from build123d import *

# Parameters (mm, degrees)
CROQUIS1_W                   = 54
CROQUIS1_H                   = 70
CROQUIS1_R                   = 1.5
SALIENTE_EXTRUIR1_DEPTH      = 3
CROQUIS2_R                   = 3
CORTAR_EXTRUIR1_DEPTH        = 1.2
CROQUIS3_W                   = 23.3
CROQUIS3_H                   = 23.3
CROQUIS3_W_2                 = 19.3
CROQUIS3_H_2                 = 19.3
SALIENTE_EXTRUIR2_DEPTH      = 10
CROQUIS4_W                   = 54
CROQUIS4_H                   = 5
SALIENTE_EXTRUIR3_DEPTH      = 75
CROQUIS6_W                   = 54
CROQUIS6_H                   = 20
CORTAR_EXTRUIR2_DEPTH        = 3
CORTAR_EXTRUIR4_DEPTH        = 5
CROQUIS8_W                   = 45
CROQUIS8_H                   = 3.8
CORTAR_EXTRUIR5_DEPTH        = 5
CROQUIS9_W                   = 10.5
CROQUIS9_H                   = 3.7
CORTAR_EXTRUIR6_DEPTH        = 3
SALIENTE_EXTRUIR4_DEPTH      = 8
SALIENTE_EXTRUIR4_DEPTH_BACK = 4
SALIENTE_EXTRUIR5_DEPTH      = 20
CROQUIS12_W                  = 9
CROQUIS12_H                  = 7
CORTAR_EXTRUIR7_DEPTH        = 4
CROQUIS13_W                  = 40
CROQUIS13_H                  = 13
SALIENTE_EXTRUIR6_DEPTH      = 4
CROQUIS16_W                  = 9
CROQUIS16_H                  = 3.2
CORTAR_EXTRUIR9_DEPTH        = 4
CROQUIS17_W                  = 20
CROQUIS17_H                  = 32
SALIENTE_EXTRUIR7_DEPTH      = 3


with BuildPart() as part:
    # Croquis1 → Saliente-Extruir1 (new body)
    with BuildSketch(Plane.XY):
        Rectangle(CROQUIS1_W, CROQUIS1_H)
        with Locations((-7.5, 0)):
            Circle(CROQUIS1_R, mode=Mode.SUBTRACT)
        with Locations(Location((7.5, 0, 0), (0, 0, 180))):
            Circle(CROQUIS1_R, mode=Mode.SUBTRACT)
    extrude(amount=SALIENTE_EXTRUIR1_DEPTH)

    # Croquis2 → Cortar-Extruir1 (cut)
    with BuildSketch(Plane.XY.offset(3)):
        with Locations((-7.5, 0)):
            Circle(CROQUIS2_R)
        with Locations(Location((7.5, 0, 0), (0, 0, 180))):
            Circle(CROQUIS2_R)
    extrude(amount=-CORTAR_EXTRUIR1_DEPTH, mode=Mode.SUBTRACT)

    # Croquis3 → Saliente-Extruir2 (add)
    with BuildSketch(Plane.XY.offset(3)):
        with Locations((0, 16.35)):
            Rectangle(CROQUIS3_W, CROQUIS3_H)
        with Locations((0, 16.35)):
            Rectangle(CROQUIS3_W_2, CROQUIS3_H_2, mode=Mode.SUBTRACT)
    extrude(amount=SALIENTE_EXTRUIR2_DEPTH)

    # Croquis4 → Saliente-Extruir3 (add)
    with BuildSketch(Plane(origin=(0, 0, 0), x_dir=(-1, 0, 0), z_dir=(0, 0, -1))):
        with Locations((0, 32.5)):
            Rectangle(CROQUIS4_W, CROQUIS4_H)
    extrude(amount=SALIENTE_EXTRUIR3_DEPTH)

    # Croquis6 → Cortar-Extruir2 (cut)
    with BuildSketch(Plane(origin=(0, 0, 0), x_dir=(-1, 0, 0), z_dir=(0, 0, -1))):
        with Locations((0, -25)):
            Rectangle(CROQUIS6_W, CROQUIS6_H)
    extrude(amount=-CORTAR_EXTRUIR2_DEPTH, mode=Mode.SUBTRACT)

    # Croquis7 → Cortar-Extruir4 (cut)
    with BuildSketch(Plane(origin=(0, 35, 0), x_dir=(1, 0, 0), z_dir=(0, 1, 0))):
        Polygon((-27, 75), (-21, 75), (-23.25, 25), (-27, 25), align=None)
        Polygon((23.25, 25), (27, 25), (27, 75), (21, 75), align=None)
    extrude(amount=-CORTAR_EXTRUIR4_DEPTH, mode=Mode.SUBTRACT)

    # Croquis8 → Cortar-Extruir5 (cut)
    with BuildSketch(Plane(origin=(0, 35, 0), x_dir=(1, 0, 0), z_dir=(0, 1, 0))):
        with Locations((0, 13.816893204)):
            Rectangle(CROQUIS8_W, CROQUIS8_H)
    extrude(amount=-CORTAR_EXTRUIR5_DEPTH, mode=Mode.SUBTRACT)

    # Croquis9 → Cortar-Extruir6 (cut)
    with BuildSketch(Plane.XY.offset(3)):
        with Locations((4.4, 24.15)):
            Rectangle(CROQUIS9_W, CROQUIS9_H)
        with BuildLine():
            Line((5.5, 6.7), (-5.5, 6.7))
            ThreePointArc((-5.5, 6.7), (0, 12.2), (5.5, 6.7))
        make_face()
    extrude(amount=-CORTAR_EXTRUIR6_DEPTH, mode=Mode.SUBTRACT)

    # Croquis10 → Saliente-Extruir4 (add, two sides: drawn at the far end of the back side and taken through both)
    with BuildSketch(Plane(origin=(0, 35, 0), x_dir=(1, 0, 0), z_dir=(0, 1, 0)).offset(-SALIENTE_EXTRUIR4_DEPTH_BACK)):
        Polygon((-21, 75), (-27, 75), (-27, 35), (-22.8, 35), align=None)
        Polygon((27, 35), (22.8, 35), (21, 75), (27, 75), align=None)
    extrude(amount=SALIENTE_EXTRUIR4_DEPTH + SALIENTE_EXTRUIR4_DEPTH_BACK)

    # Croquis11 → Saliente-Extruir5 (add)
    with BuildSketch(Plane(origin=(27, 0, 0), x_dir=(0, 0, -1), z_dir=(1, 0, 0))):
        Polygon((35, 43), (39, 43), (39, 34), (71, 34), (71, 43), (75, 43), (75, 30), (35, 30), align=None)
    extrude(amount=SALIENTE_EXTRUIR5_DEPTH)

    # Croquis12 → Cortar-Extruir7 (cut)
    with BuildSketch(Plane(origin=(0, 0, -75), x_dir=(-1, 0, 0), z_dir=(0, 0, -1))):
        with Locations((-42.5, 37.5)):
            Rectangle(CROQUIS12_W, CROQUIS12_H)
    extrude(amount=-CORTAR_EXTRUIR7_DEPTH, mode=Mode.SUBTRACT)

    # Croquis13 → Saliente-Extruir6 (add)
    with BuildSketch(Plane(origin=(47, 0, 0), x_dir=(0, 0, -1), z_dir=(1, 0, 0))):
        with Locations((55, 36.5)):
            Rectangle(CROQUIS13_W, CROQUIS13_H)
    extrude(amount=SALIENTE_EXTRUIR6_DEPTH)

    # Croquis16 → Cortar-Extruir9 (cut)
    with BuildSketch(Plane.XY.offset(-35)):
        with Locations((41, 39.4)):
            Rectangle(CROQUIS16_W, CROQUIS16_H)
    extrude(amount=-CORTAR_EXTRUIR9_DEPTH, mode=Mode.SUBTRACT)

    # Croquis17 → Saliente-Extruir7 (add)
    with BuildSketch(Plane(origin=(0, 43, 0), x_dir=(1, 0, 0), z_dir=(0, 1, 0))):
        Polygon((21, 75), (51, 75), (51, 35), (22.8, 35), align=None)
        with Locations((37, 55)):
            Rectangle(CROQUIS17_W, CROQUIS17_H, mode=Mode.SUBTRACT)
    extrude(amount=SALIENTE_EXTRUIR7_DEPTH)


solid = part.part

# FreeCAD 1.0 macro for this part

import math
import FreeCAD as App
import Part
import Sketcher

V = App.Vector
Q = App.Units.Quantity


def add_polygon(sketch, points):
    """Adds a closed chain of lines whose ends are joined by coincident constraints."""
    first, n = sketch.GeometryCount, len(points)
    for a, b in zip(points, points[1:] + points[:1]):
        sketch.addGeometry(Part.LineSegment(App.Vector(*a, 0), App.Vector(*b, 0)), False)
    for i in range(n):
        sketch.addConstraint(Sketcher.Constraint("Coincident", first + i, 2, first + (i + 1) % n, 1))

doc = App.newDocument("Part")
body = doc.addObject("PartDesign::Body", "Body")

sketch1 = body.newObject("Sketcher::SketchObject", "Sketch")
sketch1.AttachmentSupport = (doc.getObject("XY_Plane"), [""])
sketch1.MapMode = "FlatFace"
add_polygon(sketch1, [(-27, 35), (-27, -35), (27, -35), (27, 35)])
sketch1.addGeometry(Part.Circle(V(-7.5, 0, 0), V(0, 0, 1), 1.5), False)
sketch1.addGeometry(Part.Circle(V(7.5, 0, 0), V(0, 0, 1), 1.5), False)
sketch1.addConstraint(Sketcher.Constraint("Vertical", 0))
sketch1.addConstraint(Sketcher.Constraint("Horizontal", 1))
sketch1.addConstraint(Sketcher.Constraint("Vertical", 2))
sketch1.addConstraint(Sketcher.Constraint("Horizontal", 3))
sketch1.addConstraint(Sketcher.Constraint("Equal", 4, 5))
sketch1.addConstraint(Sketcher.Constraint("Symmetric", 4, 3, 5, 3, -1, 1))
sketch1.addConstraint(Sketcher.Constraint("Symmetric", 0, 2, 2, 2, -1, 1))
sketch1.addConstraint(Sketcher.Constraint("PointOnObject", 4, 3, -1))
sketch1.addConstraint(Sketcher.Constraint("Diameter", 4, Q("3 mm")))
sketch1.addConstraint(Sketcher.Constraint("DistanceX", 1, 1, 1, 2, Q("54 mm")))
sketch1.addConstraint(Sketcher.Constraint("DistanceY", 0, 2, 0, 1, Q("70 mm")))
sketch1.addConstraint(Sketcher.Constraint("DistanceX", 4, 3, 5, 3, Q("15 mm")))
pad1 = body.newObject("PartDesign::Pad", "Pad")
pad1.Profile = sketch1
pad1.Length = 3

sketch2 = body.newObject("Sketcher::SketchObject", "Sketch001")
sketch2.AttachmentSupport = (doc.getObject("XY_Plane"), [""])
sketch2.MapMode = "FlatFace"
sketch2.AttachmentOffset = App.Placement(V(0, 0, 3), App.Rotation())
sketch2.addGeometry(Part.Circle(V(-7.5, 0, 0), V(0, 0, 1), 3), False)
sketch2.addGeometry(Part.Circle(V(7.5, 0, 0), V(0, 0, 1), 3), False)
sketch2.addConstraint(Sketcher.Constraint("Equal", 0, 1))
sketch2.addConstraint(Sketcher.Constraint("Symmetric", 0, 3, 1, 3, -1, 1))
sketch2.addConstraint(Sketcher.Constraint("PointOnObject", 0, 3, -1))
sketch2.addConstraint(Sketcher.Constraint("Diameter", 0, Q("6 mm")))
sketch2.addConstraint(Sketcher.Constraint("DistanceX", 0, 3, 1, 3, Q("15 mm")))
pocket1 = body.newObject("PartDesign::Pocket", "Pocket")
pocket1.Profile = sketch2
pocket1.Length = 1.2

sketch3 = body.newObject("Sketcher::SketchObject", "Sketch002")
sketch3.AttachmentSupport = (doc.getObject("XY_Plane"), [""])
sketch3.MapMode = "FlatFace"
sketch3.AttachmentOffset = App.Placement(V(0, 0, 3), App.Rotation())
add_polygon(sketch3, [(-12, 28), (-12, 5), (12, 5), (12, 28)])
add_polygon(sketch3, [(10, 7), (-10, 7), (-10, 26), (10, 26)])
sketch3.addConstraint(Sketcher.Constraint("Vertical", 0))
sketch3.addConstraint(Sketcher.Constraint("Horizontal", 1))
sketch3.addConstraint(Sketcher.Constraint("Vertical", 2))
sketch3.addConstraint(Sketcher.Constraint("Horizontal", 3))
sketch3.addConstraint(Sketcher.Constraint("Horizontal", 4))
sketch3.addConstraint(Sketcher.Constraint("Vertical", 5))
sketch3.addConstraint(Sketcher.Constraint("Horizontal", 6))
sketch3.addConstraint(Sketcher.Constraint("Vertical", 7))
sketch3.addConstraint(Sketcher.Constraint("Equal", 3, 0))
sketch3.addConstraint(Sketcher.Constraint("Equal", 6, 5))
sketch3.addConstraint(Sketcher.Constraint("DistanceX", 1, 1, 1, 2, Q("23.3 mm")))
sketch3.addConstraint(Sketcher.Constraint("DistanceX", 4, 2, 4, 1, Q("19.3 mm")))
sketch3.addConstraint(Sketcher.Constraint("DistanceY", -1, 1, 2, 2, Q("28 mm")))
sketch3.addConstraint(Sketcher.Constraint("DistanceY", -1, 1, 5, 2, Q("26 mm")))
sketch3.addConstraint(Sketcher.Constraint("DistanceX", 0, 2, 4, 2, Q("2 mm")))
sketch3.addConstraint(Sketcher.Constraint("DistanceX", 0, 2, -1, 1, Q("11.65 mm")))
pad2 = body.newObject("PartDesign::Pad", "Pad001")
pad2.Profile = sketch3
pad2.Length = 10

sketch4 = body.newObject("Sketcher::SketchObject", "Sketch003")
sketch4.AttachmentSupport = (doc.getObject("XY_Plane"), [""])
sketch4.MapMode = "FlatFace"
add_polygon(sketch4, [(27, 35), (27, 30), (-27, 30), (-27, 35)])
sketch4.addConstraint(Sketcher.Constraint("Vertical", 0))
sketch4.addConstraint(Sketcher.Constraint("Horizontal", 1))
sketch4.addConstraint(Sketcher.Constraint("Vertical", 2))
sketch4.addConstraint(Sketcher.Constraint("Horizontal", 3))
sketch4.addConstraint(Sketcher.Constraint("DistanceX", 1, 2, 1, 1, Q("54 mm")))
sketch4.addConstraint(Sketcher.Constraint("DistanceY", 0, 2, 0, 1, Q("5 mm")))
sketch4.addConstraint(Sketcher.Constraint("DistanceX", -1, 1, 0, 2, Q("27 mm")))
sketch4.addConstraint(Sketcher.Constraint("DistanceY", -1, 1, 0, 2, Q("30 mm")))
pad3 = body.newObject("PartDesign::Pad", "Pad002")
pad3.Profile = sketch4
pad3.Length = 75
pad3.Reversed = True

sketch5 = body.newObject("Sketcher::SketchObject", "Sketch004")
sketch5.AttachmentSupport = (doc.getObject("XY_Plane"), [""])
sketch5.MapMode = "FlatFace"
add_polygon(sketch5, [(27, -15), (27, -35), (-27, -35), (-27, -15)])
sketch5.addConstraint(Sketcher.Constraint("Vertical", 0))
sketch5.addConstraint(Sketcher.Constraint("Horizontal", 1))
sketch5.addConstraint(Sketcher.Constraint("Vertical", 2))
sketch5.addConstraint(Sketcher.Constraint("Horizontal", 3))
sketch5.addConstraint(Sketcher.Constraint("DistanceX", 1, 2, 1, 1, Q("54 mm")))
sketch5.addConstraint(Sketcher.Constraint("DistanceY", 0, 2, 0, 1, Q("20 mm")))
sketch5.addConstraint(Sketcher.Constraint("DistanceX", -1, 1, 0, 2, Q("27 mm")))
sketch5.addConstraint(Sketcher.Constraint("DistanceY", 0, 2, -1, 1, Q("35 mm")))
pocket2 = body.newObject("PartDesign::Pocket", "Pocket001")
pocket2.Profile = sketch5
pocket2.Length = 3
pocket2.Reversed = True

sketch6 = body.newObject("Sketcher::SketchObject", "Sketch005")
sketch6.AttachmentSupport = (doc.getObject("XZ_Plane"), [""])
sketch6.MapMode = "FlatFace"
sketch6.AttachmentOffset = App.Placement(V(0, 0, -35), App.Rotation())
add_polygon(sketch6, [(-21, -75), (-27, -75), (-27, -25), (-23.2, -25)])
add_polygon(sketch6, [(23.2, -25), (27, -25), (27, -75), (21, -75)])
sketch6.addConstraint(Sketcher.Constraint("Horizontal", 0))
sketch6.addConstraint(Sketcher.Constraint("Vertical", 1))
sketch6.addConstraint(Sketcher.Constraint("Horizontal", 2))
sketch6.addConstraint(Sketcher.Constraint("Horizontal", 4))
sketch6.addConstraint(Sketcher.Constraint("Vertical", 5))
sketch6.addConstraint(Sketcher.Constraint("Horizontal", 6))
sketch6.addConstraint(Sketcher.Constraint("Symmetric", 1, 2, 4, 2, -2))
sketch6.addConstraint(Sketcher.Constraint("Symmetric", 3, 2, 6, 2, -2))
sketch6.addConstraint(Sketcher.Constraint("Equal", 2, 4))
sketch6.addConstraint(Sketcher.Constraint("DistanceX", 0, 2, 0, 1, Q("6 mm")))
sketch6.addConstraint(Sketcher.Constraint("DistanceY", 1, 1, 1, 2, Q("50 mm")))
sketch6.addConstraint(Sketcher.Constraint("DistanceX", 0, 2, -1, 1, Q("27 mm")))
sketch6.addConstraint(Sketcher.Constraint("DistanceY", 0, 2, -1, 1, Q("75 mm")))
sketch6.addConstraint(Sketcher.Constraint("DistanceX", 2, 1, 2, 2, Q("3.75 mm")))
pocket3 = body.newObject("PartDesign::Pocket", "Pocket002")
pocket3.Profile = sketch6
pocket3.Length = 5
pocket3.Reversed = True

sketch7 = body.newObject("Sketcher::SketchObject", "Sketch006")
sketch7.AttachmentSupport = (doc.getObject("XZ_Plane"), [""])
sketch7.MapMode = "FlatFace"
sketch7.AttachmentOffset = App.Placement(V(0, 0, -35), App.Rotation())
add_polygon(sketch7, [(-22.5, -15.7), (-22.5, -11.9), (22.5, -11.9), (22.5, -15.7)])
sketch7.addConstraint(Sketcher.Constraint("Vertical", 0))
sketch7.addConstraint(Sketcher.Constraint("Horizontal", 1))
sketch7.addConstraint(Sketcher.Constraint("Vertical", 2))
sketch7.addConstraint(Sketcher.Constraint("Horizontal", 3))
sketch7.addConstraint(Sketcher.Constraint("DistanceX", 1, 1, 1, 2, Q("45 mm")))
sketch7.addConstraint(Sketcher.Constraint("DistanceY", 0, 1, 0, 2, Q("3.8 mm")))
sketch7.addConstraint(Sketcher.Constraint("DistanceX", 0, 2, -1, 1, Q("22.5 mm")))
sketch7.addConstraint(Sketcher.Constraint("DistanceY", 0, 2, -1, 1, Q("11.916893 mm")))
pocket4 = body.newObject("PartDesign::Pocket", "Pocket003")
pocket4.Profile = sketch7
pocket4.Length = 5
pocket4.Reversed = True

sketch8 = body.newObject("Sketcher::SketchObject", "Sketch007")
sketch8.AttachmentSupport = (doc.getObject("XY_Plane"), [""])
sketch8.MapMode = "FlatFace"
sketch8.AttachmentOffset = App.Placement(V(0, 0, 3), App.Rotation())
add_polygon(sketch8, [(-0.8, 26), (-0.8, 22.3), (9.7, 22.3), (9.7, 26)])
sketch8.addGeometry(Part.LineSegment(V(-5.5, 6.7, 0), V(5.5, 6.7, 0)), False)
sketch8.addGeometry(Part.ArcOfCircle(Part.Circle(V(0, 6.7, 0), V(0, 0, 1), 5.5), math.radians(0), math.radians(180)), False)
sketch8.addConstraint(Sketcher.Constraint("Coincident", 4, 1, 5, 2))
sketch8.addConstraint(Sketcher.Constraint("Coincident", 5, 1, 4, 2))
sketch8.addConstraint(Sketcher.Constraint("Vertical", 0))
sketch8.addConstraint(Sketcher.Constraint("Horizontal", 1))
sketch8.addConstraint(Sketcher.Constraint("Vertical", 2))
sketch8.addConstraint(Sketcher.Constraint("Horizontal", 3))
sketch8.addConstraint(Sketcher.Constraint("Horizontal", 4))
sketch8.addConstraint(Sketcher.Constraint("PointOnObject", 5, 3, -2))
sketch8.addConstraint(Sketcher.Constraint("Horizontal", 5, 3, 4, 1))
sketch8.addConstraint(Sketcher.Constraint("Radius", 5, Q("5.5 mm")))
sketch8.addConstraint(Sketcher.Constraint("DistanceX", 1, 1, 1, 2, Q("10.5 mm")))
sketch8.addConstraint(Sketcher.Constraint("DistanceY", 0, 2, 0, 1, Q("3.7 mm")))
sketch8.addConstraint(Sketcher.Constraint("DistanceY", -1, 1, 2, 2, Q("26 mm")))
sketch8.addConstraint(Sketcher.Constraint("DistanceY", -1, 1, 5, 3, Q("6.7 mm")))
sketch8.addConstraint(Sketcher.Constraint("DistanceX", 0, 2, -1, 1, Q("0.85 mm")))
pocket5 = body.newObject("PartDesign::Pocket", "Pocket004")
pocket5.Profile = sketch8
pocket5.Length = 3

sketch9 = body.newObject("Sketcher::SketchObject", "Sketch008")
sketch9.AttachmentSupport = (doc.getObject("XZ_Plane"), [""])
sketch9.MapMode = "FlatFace"
sketch9.AttachmentOffset = App.Placement(V(0, 0, -35), App.Rotation())
add_polygon(sketch9, [(-21, -75), (-27, -75), (-27, -35), (-22.8, -35)])
add_polygon(sketch9, [(22.8, -35), (27, -35), (27, -75), (21, -75)])
sketch9.addConstraint(Sketcher.Constraint("Horizontal", 0))
sketch9.addConstraint(Sketcher.Constraint("Vertical", 1))
sketch9.addConstraint(Sketcher.Constraint("Horizontal", 2))
sketch9.addConstraint(Sketcher.Constraint("Horizontal", 4))
sketch9.addConstraint(Sketcher.Constraint("Vertical", 5))
sketch9.addConstraint(Sketcher.Constraint("Horizontal", 6))
sketch9.addConstraint(Sketcher.Constraint("Symmetric", 1, 2, 4, 2, -2))
sketch9.addConstraint(Sketcher.Constraint("Symmetric", 3, 2, 6, 2, -2))
sketch9.addConstraint(Sketcher.Constraint("Equal", 2, 4))
sketch9.addConstraint(Sketcher.Constraint("DistanceX", 0, 2, 0, 1, Q("6 mm")))
sketch9.addConstraint(Sketcher.Constraint("DistanceY", 1, 1, 1, 2, Q("40 mm")))
sketch9.addConstraint(Sketcher.Constraint("DistanceX", 2, 1, 2, 2, Q("4.2 mm")))
sketch9.addConstraint(Sketcher.Constraint("DistanceX", 0, 2, -1, 1, Q("27 mm")))
sketch9.addConstraint(Sketcher.Constraint("DistanceY", 0, 2, -1, 1, Q("75 mm")))
pad4 = body.newObject("PartDesign::Pad", "Pad003")
pad4.Profile = sketch9
pad4.Type = "TwoLengths"
pad4.Length = 8
pad4.Length2 = 4
pad4.Reversed = True

sketch10 = body.newObject("Sketcher::SketchObject", "Sketch009")
sketch10.AttachmentSupport = (doc.getObject("YZ_Plane"), [""])
sketch10.MapMode = "FlatFace"
sketch10.AttachmentOffset = App.Placement(V(0, 0, 27), App.Rotation())
add_polygon(sketch10, [(43, -39), (43, -35), (30, -35), (30, -75), (43, -75), (43, -71), (34, -71), (34, -39)])
sketch10.addConstraint(Sketcher.Constraint("Vertical", 0))
sketch10.addConstraint(Sketcher.Constraint("Horizontal", 1))
sketch10.addConstraint(Sketcher.Constraint("Vertical", 2))
sketch10.addConstraint(Sketcher.Constraint("Horizontal", 3))
sketch10.addConstraint(Sketcher.Constraint("Vertical", 4))
sketch10.addConstraint(Sketcher.Constraint("Horizontal", 5))
sketch10.addConstraint(Sketcher.Constraint("Vertical", 6))
sketch10.addConstraint(Sketcher.Constraint("Horizontal", 7))
sketch10.addConstraint(Sketcher.Constraint("Vertical", 0, 2, 3, 2))
sketch10.addConstraint(Sketcher.Constraint("Equal", 0, 4))
sketch10.addConstraint(Sketcher.Constraint("DistanceX", 1, 2, 1, 1, Q("13 mm")))
sketch10.addConstraint(Sketcher.Constraint("DistanceX", 5, 2, 5, 1, Q("9 mm")))
sketch10.addConstraint(Sketcher.Constraint("DistanceY", 0, 1, 0, 2, Q("4 mm")))
sketch10.addConstraint(Sketcher.Constraint("DistanceY", 2, 2, 2, 1, Q("40 mm")))
sketch10.addConstraint(Sketcher.Constraint("DistanceX", -1, 1, 0, 2, Q("43 mm")))
sketch10.addConstraint(Sketcher.Constraint("DistanceY", 0, 2, -1, 1, Q("35 mm")))
pad5 = body.newObject("PartDesign::Pad", "Pad004")
pad5.Profile = sketch10
pad5.Length = 20

sketch11 = body.newObject("Sketcher::SketchObject", "Sketch010")
sketch11.AttachmentSupport = (doc.getObject("XY_Plane"), [""])
sketch11.MapMode = "FlatFace"
sketch11.AttachmentOffset = App.Placement(V(0, 0, -75), App.Rotation())
add_polygon(sketch11, [(47, 41), (47, 34), (38, 34), (38, 41)])
sketch11.addConstraint(Sketcher.Constraint("Vertical", 0))
sketch11.addConstraint(Sketcher.Constraint("Horizontal", 1))
sketch11.addConstraint(Sketcher.Constraint("Vertical", 2))
sketch11.addConstraint(Sketcher.Constraint("Horizontal", 3))
sketch11.addConstraint(Sketcher.Constraint("DistanceX", 1, 2, 1, 1, Q("9 mm")))
sketch11.addConstraint(Sketcher.Constraint("DistanceY", 0, 2, 0, 1, Q("7 mm")))
sketch11.addConstraint(Sketcher.Constraint("DistanceX", -1, 1, 0, 2, Q("47 mm")))
sketch11.addConstraint(Sketcher.Constraint("DistanceY", -1, 1, 0, 2, Q("34 mm")))
pocket6 = body.newObject("PartDesign::Pocket", "Pocket005")
pocket6.Profile = sketch11
pocket6.Length = 4
pocket6.Reversed = True

sketch12 = body.newObject("Sketcher::SketchObject", "Sketch011")
sketch12.AttachmentSupport = (doc.getObject("YZ_Plane"), [""])
sketch12.MapMode = "FlatFace"
sketch12.AttachmentOffset = App.Placement(V(0, 0, 47), App.Rotation())
add_polygon(sketch12, [(43, -35), (30, -35), (30, -75), (43, -75)])
sketch12.addConstraint(Sketcher.Constraint("Horizontal", 0))
sketch12.addConstraint(Sketcher.Constraint("Vertical", 1))
sketch12.addConstraint(Sketcher.Constraint("Horizontal", 2))
sketch12.addConstraint(Sketcher.Constraint("Vertical", 3))
sketch12.addConstraint(Sketcher.Constraint("DistanceX", 0, 2, 0, 1, Q("13 mm")))
sketch12.addConstraint(Sketcher.Constraint("DistanceY", 1, 2, 1, 1, Q("40 mm")))
sketch12.addConstraint(Sketcher.Constraint("DistanceX", -1, 1, 0, 2, Q("30 mm")))
sketch12.addConstraint(Sketcher.Constraint("DistanceY", 0, 2, -1, 1, Q("35 mm")))
pad6 = body.newObject("PartDesign::Pad", "Pad005")
pad6.Profile = sketch12
pad6.Length = 4

sketch13 = body.newObject("Sketcher::SketchObject", "Sketch012")
sketch13.AttachmentSupport = (doc.getObject("XY_Plane"), [""])
sketch13.MapMode = "FlatFace"
sketch13.AttachmentOffset = App.Placement(V(0, 0, -35), App.Rotation())
add_polygon(sketch13, [(36.5, 41), (36.5, 37.8), (45.5, 37.8), (45.5, 41)])
sketch13.addConstraint(Sketcher.Constraint("Vertical", 0))
sketch13.addConstraint(Sketcher.Constraint("Horizontal", 1))
sketch13.addConstraint(Sketcher.Constraint("Vertical", 2))
sketch13.addConstraint(Sketcher.Constraint("Horizontal", 3))
sketch13.addConstraint(Sketcher.Constraint("DistanceX", 1, 1, 1, 2, Q("9 mm")))
sketch13.addConstraint(Sketcher.Constraint("DistanceY", 0, 2, 0, 1, Q("3.2 mm")))
sketch13.addConstraint(Sketcher.Constraint("DistanceY", -1, 1, 2, 2, Q("41 mm")))
sketch13.addConstraint(Sketcher.Constraint("DistanceX", -1, 1, 0, 2, Q("36.5 mm")))
pocket7 = body.newObject("PartDesign::Pocket", "Pocket006")
pocket7.Profile = sketch13
pocket7.Length = 4

sketch14 = body.newObject("Sketcher::SketchObject", "Sketch013")
sketch14.AttachmentSupport = (doc.getObject("XZ_Plane"), [""])
sketch14.MapMode = "FlatFace"
sketch14.AttachmentOffset = App.Placement(V(0, 0, -43), App.Rotation())
add_polygon(sketch14, [(51, -75), (21, -75), (23, -35), (51, -35)])
add_polygon(sketch14, [(27, -39), (27, -71), (47, -71), (47, -39)])
sketch14.addConstraint(Sketcher.Constraint("Horizontal", 0))
sketch14.addConstraint(Sketcher.Constraint("Horizontal", 2))
sketch14.addConstraint(Sketcher.Constraint("Vertical", 3))
sketch14.addConstraint(Sketcher.Constraint("Vertical", 4))
sketch14.addConstraint(Sketcher.Constraint("Horizontal", 5))
sketch14.addConstraint(Sketcher.Constraint("Vertical", 6))
sketch14.addConstraint(Sketcher.Constraint("Horizontal", 7))
sketch14.addConstraint(Sketcher.Constraint("DistanceX", 0, 2, 0, 1, Q("30 mm")))
sketch14.addConstraint(Sketcher.Constraint("DistanceX", 5, 1, 5, 2, Q("20 mm")))
sketch14.addConstraint(Sketcher.Constraint("DistanceY", 3, 2, 3, 1, Q("40 mm")))
sketch14.addConstraint(Sketcher.Constraint("DistanceY", 4, 2, 4, 1, Q("32 mm")))
sketch14.addConstraint(Sketcher.Constraint("DistanceX", 2, 1, 2, 2, Q("28.2 mm")))
sketch14.addConstraint(Sketcher.Constraint("DistanceX", -1, 1, 0, 2, Q("21 mm")))
sketch14.addConstraint(Sketcher.Constraint("DistanceY", 0, 2, -1, 1, Q("75 mm")))
sketch14.addConstraint(Sketcher.Constraint("DistanceX", -1, 1, 4, 2, Q("27 mm")))
sketch14.addConstraint(Sketcher.Constraint("DistanceY", 4, 2, -1, 1, Q("71 mm")))
pad7 = body.newObject("PartDesign::Pad", "Pad006")
pad7.Profile = sketch14
pad7.Length = 3
pad7.Reversed = True

doc.recompute()
